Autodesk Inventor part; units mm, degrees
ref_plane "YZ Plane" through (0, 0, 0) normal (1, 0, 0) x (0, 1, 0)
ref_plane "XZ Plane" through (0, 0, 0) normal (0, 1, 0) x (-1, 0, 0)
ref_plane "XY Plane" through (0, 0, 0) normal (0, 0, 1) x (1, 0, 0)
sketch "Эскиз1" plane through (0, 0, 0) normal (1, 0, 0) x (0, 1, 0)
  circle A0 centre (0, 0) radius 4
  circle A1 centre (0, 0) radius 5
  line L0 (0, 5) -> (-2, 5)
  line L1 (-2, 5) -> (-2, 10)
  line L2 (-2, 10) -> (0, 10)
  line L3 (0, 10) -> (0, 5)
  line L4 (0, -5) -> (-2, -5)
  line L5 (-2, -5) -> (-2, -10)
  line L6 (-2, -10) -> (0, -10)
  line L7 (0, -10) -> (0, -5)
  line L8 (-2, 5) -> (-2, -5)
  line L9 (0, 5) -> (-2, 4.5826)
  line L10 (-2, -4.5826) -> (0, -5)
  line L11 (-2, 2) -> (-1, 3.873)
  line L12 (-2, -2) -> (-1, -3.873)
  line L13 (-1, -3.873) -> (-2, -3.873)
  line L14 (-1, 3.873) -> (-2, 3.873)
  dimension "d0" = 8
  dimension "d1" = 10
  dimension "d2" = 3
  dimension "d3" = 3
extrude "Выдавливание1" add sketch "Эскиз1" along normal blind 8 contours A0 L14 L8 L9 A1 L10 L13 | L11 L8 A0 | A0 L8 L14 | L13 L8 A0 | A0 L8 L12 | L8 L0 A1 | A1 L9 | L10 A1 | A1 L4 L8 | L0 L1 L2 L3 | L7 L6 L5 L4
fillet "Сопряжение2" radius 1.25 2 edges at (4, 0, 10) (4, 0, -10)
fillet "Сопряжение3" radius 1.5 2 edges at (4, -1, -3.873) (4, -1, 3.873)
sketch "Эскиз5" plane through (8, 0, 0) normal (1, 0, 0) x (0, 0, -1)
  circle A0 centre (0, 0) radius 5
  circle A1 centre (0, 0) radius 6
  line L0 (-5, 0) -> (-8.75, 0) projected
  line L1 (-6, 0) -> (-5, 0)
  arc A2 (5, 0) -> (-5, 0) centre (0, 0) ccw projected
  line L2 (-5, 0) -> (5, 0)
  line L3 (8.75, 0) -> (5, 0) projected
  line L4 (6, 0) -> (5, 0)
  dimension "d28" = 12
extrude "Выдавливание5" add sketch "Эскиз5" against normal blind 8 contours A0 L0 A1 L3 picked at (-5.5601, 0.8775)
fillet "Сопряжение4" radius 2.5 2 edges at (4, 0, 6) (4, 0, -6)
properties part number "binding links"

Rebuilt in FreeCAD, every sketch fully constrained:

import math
import FreeCAD as App
import Part
import Sketcher
from FreeCAD import Vector


def edges_at(feature, points):
    """Names of the edges that pass closest to the given points."""
    edges = feature.Shape.Edges
    near = lambda p: min(range(len(edges)), key=lambda i: edges[i].distToShape(Part.Vertex(*p))[0])
    return sorted({f"Edge{near(p) + 1}" for p in points})

doc = App.newDocument("Part")
body = doc.addObject("PartDesign::Body", "Body")

# Sketch on YZ plane
sketch1 = body.newObject("Sketcher::SketchObject", "Sketch")
sketch1.AttachmentSupport = (doc.getObject("YZ_Plane"), [""])
sketch1.MapMode = "FlatFace"
sketch1.addGeometry([
    Part.ArcOfCircle(Part.Circle(Vector(0, 0, 0), Vector(0, 0, 1), 4), math.radians(-104), math.radians(104)),  # 0
    Part.LineSegment(Vector(-1, -3.9, 0), Vector(-2, -2, 0)),  # 1
    Part.LineSegment(Vector(-2, -2, 0), Vector(-2, -10, 0)),  # 2
    Part.LineSegment(Vector(-2, -10, 0), Vector(0, -10, 0)),  # 3
    Part.LineSegment(Vector(0, -10, 0), Vector(0, -5, 0)),  # 4
    Part.ArcOfCircle(Part.Circle(Vector(0, 0, 0), Vector(0, 0, 1), 5), math.radians(-90), math.radians(90)),  # 5
    Part.LineSegment(Vector(0, 5, 0), Vector(0, 10, 0)),  # 6
    Part.LineSegment(Vector(0, 10, 0), Vector(-2, 10, 0)),  # 7
    Part.LineSegment(Vector(-2, 10, 0), Vector(-2, 2, 0)),  # 8
    Part.LineSegment(Vector(-2, 2, 0), Vector(-1, 3.9, 0)),  # 9
], False)
sketch1.addConstraint([
    Sketcher.Constraint("Coincident", 0, 1, 1, 1),
    Sketcher.Constraint("Coincident", 1, 2, 2, 1),
    Sketcher.Constraint("Coincident", 2, 2, 3, 1),
    Sketcher.Constraint("Coincident", 3, 2, 4, 1),
    Sketcher.Constraint("Coincident", 4, 2, 5, 1),
    Sketcher.Constraint("Coincident", 5, 2, 6, 1),
    Sketcher.Constraint("Coincident", 6, 2, 7, 1),
    Sketcher.Constraint("Coincident", 7, 2, 8, 1),
    Sketcher.Constraint("Coincident", 8, 2, 9, 1),
    Sketcher.Constraint("Coincident", 9, 2, 0, 2),
    Sketcher.Constraint("Vertical", 2),
    Sketcher.Constraint("Horizontal", 3),
    Sketcher.Constraint("Vertical", 4),
    Sketcher.Constraint("Vertical", 6),
    Sketcher.Constraint("Horizontal", 7),
    Sketcher.Constraint("Vertical", 8),
    Sketcher.Constraint("Coincident", 0, 3, -1, 1),
    Sketcher.Constraint("Coincident", 5, 3, -1, 1),
    Sketcher.Constraint("Symmetric", 3, 2, 6, 2, -1, 1),
    Sketcher.Constraint("Symmetric", 1, 2, 8, 2, -1),
    Sketcher.Constraint("PointOnObject", 3, 2, -2),
    Sketcher.Constraint("Vertical", 0, 1, 9, 2),
    Sketcher.Constraint("Radius", 0, 4.0),
    Sketcher.Constraint("Radius", 5, 5.0),
    Sketcher.Constraint("DistanceY", 2, 2, 2, 1, 8.0),
    Sketcher.Constraint("DistanceY", 2, 2, -1, 1, 10.0),
    Sketcher.Constraint("DistanceX", 3, 1, 3, 2, 2.0),
    Sketcher.Constraint("DistanceX", 0, 1, -1, 1, 1.0),
])
pad1 = body.newObject("PartDesign::Pad", "Pad")
pad1.Profile = sketch1
pad1.Length = 8
doc.recompute()

fillet = body.newObject("PartDesign::Fillet", "Fillet")
fillet.Base = (pad1, edges_at(pad1, [(4, 0, 10), (4, 0, -10)]))
fillet.Radius = 1.25
doc.recompute()

fillet2 = body.newObject("PartDesign::Fillet", "Fillet001")
fillet2.Base = (fillet, edges_at(fillet, [(4, -1, -3.873), (4, -1, 3.873)]))
fillet2.Radius = 1.5

# Sketch on YZ plane
sketch2 = body.newObject("Sketcher::SketchObject", "Sketch001")
sketch2.AttachmentSupport = (doc.getObject("YZ_Plane"), [""])
sketch2.MapMode = "FlatFace"
sketch2.AttachmentOffset = App.Placement(Vector(0, 0, 8), App.Rotation())
sketch2.addGeometry([
    Part.ArcOfCircle(Part.Circle(Vector(0, 0, 0), Vector(0, 0, 1), 5), math.radians(-90), math.radians(90)),
    Part.LineSegment(Vector(0, -5, 0), Vector(0, -6, 0)),
    Part.ArcOfCircle(Part.Circle(Vector(0, 0, 0), Vector(0, 0, 1), 6), math.radians(-90), math.radians(90)),
    Part.LineSegment(Vector(0, 6, 0), Vector(0, 5, 0)),
], False)
sketch2.addConstraint([
    Sketcher.Constraint("Coincident", 0, 1, 1, 1),
    Sketcher.Constraint("Coincident", 1, 2, 2, 1),
    Sketcher.Constraint("Coincident", 2, 2, 3, 1),
    Sketcher.Constraint("Coincident", 3, 2, 0, 2),
    Sketcher.Constraint("Vertical", 1),
    Sketcher.Constraint("Vertical", 3),
    Sketcher.Constraint("Coincident", 0, 3, -1, 1),
    Sketcher.Constraint("Coincident", 2, 3, -1, 1),
    Sketcher.Constraint("PointOnObject", 0, 1, -2),
    Sketcher.Constraint("PointOnObject", 2, 2, -2),
    Sketcher.Constraint("Radius", 2, 6.0),
    Sketcher.Constraint("Radius", 0, 5.0),
])
pad2 = body.newObject("PartDesign::Pad", "Pad001")
pad2.Profile = sketch2
pad2.Length = 8
pad2.Reversed = True
doc.recompute()

fillet3 = body.newObject("PartDesign::Fillet", "Fillet002")
fillet3.Base = (pad2, edges_at(pad2, [(4, 0, 6), (4, 0, -6)]))
fillet3.Radius = 2.5

doc.recompute()
